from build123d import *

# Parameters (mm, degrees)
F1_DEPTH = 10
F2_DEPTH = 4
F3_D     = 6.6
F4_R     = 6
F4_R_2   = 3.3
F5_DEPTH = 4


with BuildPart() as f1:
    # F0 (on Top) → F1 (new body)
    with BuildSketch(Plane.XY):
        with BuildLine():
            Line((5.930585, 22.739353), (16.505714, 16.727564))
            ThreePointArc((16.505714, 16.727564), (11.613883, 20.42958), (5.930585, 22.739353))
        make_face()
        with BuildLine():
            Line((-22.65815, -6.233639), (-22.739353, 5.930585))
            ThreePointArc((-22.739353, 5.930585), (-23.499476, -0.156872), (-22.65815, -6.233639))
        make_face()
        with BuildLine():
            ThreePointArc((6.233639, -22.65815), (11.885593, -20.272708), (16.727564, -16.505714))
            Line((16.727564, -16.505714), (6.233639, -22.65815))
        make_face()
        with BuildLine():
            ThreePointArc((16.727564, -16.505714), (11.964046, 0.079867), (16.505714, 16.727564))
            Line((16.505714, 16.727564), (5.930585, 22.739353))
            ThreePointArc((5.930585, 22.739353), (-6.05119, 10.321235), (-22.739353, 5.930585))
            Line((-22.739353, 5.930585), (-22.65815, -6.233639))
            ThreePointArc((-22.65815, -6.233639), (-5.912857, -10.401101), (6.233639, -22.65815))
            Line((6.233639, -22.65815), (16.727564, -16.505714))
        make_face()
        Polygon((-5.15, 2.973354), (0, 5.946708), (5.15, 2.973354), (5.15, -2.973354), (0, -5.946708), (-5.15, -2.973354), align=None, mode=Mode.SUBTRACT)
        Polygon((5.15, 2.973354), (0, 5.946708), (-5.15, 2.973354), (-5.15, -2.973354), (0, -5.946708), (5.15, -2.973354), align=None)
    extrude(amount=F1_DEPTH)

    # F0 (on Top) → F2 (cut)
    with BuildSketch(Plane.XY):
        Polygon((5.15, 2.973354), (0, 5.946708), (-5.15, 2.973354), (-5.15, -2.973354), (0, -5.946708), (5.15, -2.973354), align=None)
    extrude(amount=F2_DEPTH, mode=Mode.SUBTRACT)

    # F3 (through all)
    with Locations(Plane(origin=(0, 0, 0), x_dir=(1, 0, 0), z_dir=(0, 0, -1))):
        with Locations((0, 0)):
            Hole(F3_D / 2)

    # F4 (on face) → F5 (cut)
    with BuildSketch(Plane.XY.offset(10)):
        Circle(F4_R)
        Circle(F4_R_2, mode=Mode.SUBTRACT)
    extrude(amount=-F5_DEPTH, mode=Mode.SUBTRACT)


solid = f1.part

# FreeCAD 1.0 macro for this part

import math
import FreeCAD as App
import Part
import Sketcher
from FreeCAD import Vector
Q = App.Units.Quantity


def add_polygon(sketch, points):
    """Adds a closed chain of lines whose ends are joined by coincident constraints."""
    first, n = sketch.GeometryCount, len(points)
    for a, b in zip(points, points[1:] + points[:1]):
        sketch.addGeometry(Part.LineSegment(App.Vector(*a, 0), App.Vector(*b, 0)), False)
    for i in range(n):
        sketch.addConstraint(Sketcher.Constraint("Coincident", first + i, 2, first + (i + 1) % n, 1))

doc = App.newDocument("Part")
body = doc.addObject("PartDesign::Body", "Body")

sketch1 = doc.addObject("Sketcher::SketchObject", "Sketch")
body.addObject(sketch1)
sketch1.AttachmentSupport = (doc.XY_Plane, [""])
sketch1.MapMode = "FlatFace"
sketch1.addGeometry([
    Part.ArcOfCircle(Part.Circle(Vector(0, 0, 0), Vector(0, 0, 1), 23), math.radians(45), math.radians(75)),
    Part.ArcOfCircle(Part.Circle(Vector(-22, 38, 0), Vector(0, 0, 1), 32), math.radians(-91), math.radians(-28)),
    Part.ArcOfCircle(Part.Circle(Vector(0, 0, 0), Vector(0, 0, 1), 24), math.radians(165), math.radians(195)),
    Part.ArcOfCircle(Part.Circle(Vector(-22, -38, 0), Vector(0, 0, 1), 32), math.radians(29), math.radians(92)),
    Part.ArcOfCircle(Part.Circle(Vector(0, 0, 0), Vector(0, 0, 1), 23), math.radians(-75), math.radians(-45)),
    Part.ArcOfCircle(Part.Circle(Vector(44, 0, 0), Vector(0, 0, 1), 32), math.radians(149), math.radians(212)),
], False)
sketch1.addConstraint([
    Sketcher.Constraint("Coincident", 0, 2, 1, 2),
    Sketcher.Constraint("Coincident", 1, 1, 2, 1),
    Sketcher.Constraint("Coincident", 2, 2, 3, 2),
    Sketcher.Constraint("Coincident", 3, 1, 4, 1),
    Sketcher.Constraint("Coincident", 4, 2, 5, 2),
    Sketcher.Constraint("Coincident", 5, 1, 0, 1),
    Sketcher.Constraint("Coincident", 0, 3, -1, 1),
    Sketcher.Constraint("Coincident", 4, 3, -1, 1),
    Sketcher.Constraint("Equal", 3, 5),
    Sketcher.Constraint("PointOnObject", 2, 3, -1),
    Sketcher.Constraint("Radius", 3, Q("32 mm")),
    Sketcher.Constraint("Radius", 0, Q("23.499991 mm")),
    Sketcher.Constraint("Radius", 2, Q("23.500021 mm")),
    Sketcher.Constraint("Radius", 1, Q("32.000003 mm")),
    Sketcher.Constraint("Radius", 4, Q("23.499996 mm")),
    Sketcher.Constraint("DistanceY", 3, 3, 4, 3, Q("38.220099 mm")),
    Sketcher.Constraint("DistanceX", 1, 3, -1, 1, Q("22.23583 mm")),
    Sketcher.Constraint("DistanceY", -1, 1, 5, 3, Q("0.293479 mm")),
    Sketcher.Constraint("DistanceX", 2, 2, -1, 1, Q("22.65815 mm")),
    Sketcher.Constraint("DistanceX", -1, 1, 3, 1, Q("6.233639 mm")),
    Sketcher.Constraint("DistanceY", 3, 3, 1, 3, Q("76.146729 mm")),
    Sketcher.Constraint("DistanceX", 2, 3, 5, 3, Q("43.963311 mm")),
])
pad1 = doc.addObject("PartDesign::Pad", "Pad")
body.addObject(pad1)
pad1.Profile = sketch1
pad1.Length = 10

sketch2 = doc.addObject("Sketcher::SketchObject", "Sketch001")
body.addObject(sketch2)
sketch2.AttachmentSupport = (doc.XY_Plane, [""])
sketch2.MapMode = "FlatFace"
add_polygon(sketch2, [(5, 3), (0, 6), (-5, 3), (-5, -3), (0, -6), (5, -3)])
sketch2.addConstraint([
    Sketcher.Constraint("Vertical", 2),
    Sketcher.Constraint("Vertical", 5),
    Sketcher.Constraint("Symmetric", 0, 2, 3, 2, -1, 1),
    Sketcher.Constraint("Symmetric", 1, 2, 4, 2, -1, 1),
    Sketcher.Constraint("PointOnObject", 0, 2, -2),
    Sketcher.Constraint("Parallel", 0, 3),
    Sketcher.Constraint("Horizontal", 2, 2, 4, 2),
    Sketcher.Constraint("Angle", 0, Q("149.999999 deg")),
    Sketcher.Constraint("DistanceX", 2, 2, 4, 2, Q("10.3 mm")),
    Sketcher.Constraint("DistanceY", 2, 2, 2, 1, Q("5.946708 mm")),
])
pocket1 = doc.addObject("PartDesign::Pocket", "Pocket")
body.addObject(pocket1)
pocket1.Profile = sketch2
pocket1.Length = 4
pocket1.Reversed = True

sketch3 = doc.addObject("Sketcher::SketchObject", "Sketch002")
body.addObject(sketch3)
sketch3.AttachmentSupport = (doc.XY_Plane, [""])
sketch3.MapMode = "FlatFace"
sketch3.addGeometry(Part.Circle(Vector(0, 0, 0), Vector(0, 0, 1), 3.3), False)
sketch3.addConstraint([
    Sketcher.Constraint("Coincident", 0, 3, -1, 1),
    Sketcher.Constraint("Diameter", 0, Q("6.6 mm")),
])
doc.recompute()
hole = doc.addObject("PartDesign::Hole", "Hole")
body.addObject(hole)
hole.Profile = sketch3
hole.ThreadType = "None"
hole.Diameter = 6.6
hole.DepthType = "ThroughAll"
hole.Reversed = True

sketch4 = doc.addObject("Sketcher::SketchObject", "Sketch003")
body.addObject(sketch4)
sketch4.AttachmentSupport = (doc.XY_Plane, [""])
sketch4.MapMode = "FlatFace"
sketch4.AttachmentOffset = App.Placement(Vector(0, 0, 10), App.Rotation())
sketch4.addGeometry([
    Part.Circle(Vector(0, 0, 0), Vector(0, 0, 1), 6),
    Part.Circle(Vector(0, 0, 0), Vector(0, 0, 1), 3.3),
], False)
sketch4.addConstraint([
    Sketcher.Constraint("Coincident", 0, 3, -1, 1),
    Sketcher.Constraint("Coincident", 1, 3, -1, 1),
    Sketcher.Constraint("Diameter", 0, Q("12 mm")),
    Sketcher.Constraint("Diameter", 1, Q("6.6 mm")),
])
pocket2 = doc.addObject("PartDesign::Pocket", "Pocket001")
body.addObject(pocket2)
pocket2.Profile = sketch4
pocket2.Length = 4

doc.recompute()
